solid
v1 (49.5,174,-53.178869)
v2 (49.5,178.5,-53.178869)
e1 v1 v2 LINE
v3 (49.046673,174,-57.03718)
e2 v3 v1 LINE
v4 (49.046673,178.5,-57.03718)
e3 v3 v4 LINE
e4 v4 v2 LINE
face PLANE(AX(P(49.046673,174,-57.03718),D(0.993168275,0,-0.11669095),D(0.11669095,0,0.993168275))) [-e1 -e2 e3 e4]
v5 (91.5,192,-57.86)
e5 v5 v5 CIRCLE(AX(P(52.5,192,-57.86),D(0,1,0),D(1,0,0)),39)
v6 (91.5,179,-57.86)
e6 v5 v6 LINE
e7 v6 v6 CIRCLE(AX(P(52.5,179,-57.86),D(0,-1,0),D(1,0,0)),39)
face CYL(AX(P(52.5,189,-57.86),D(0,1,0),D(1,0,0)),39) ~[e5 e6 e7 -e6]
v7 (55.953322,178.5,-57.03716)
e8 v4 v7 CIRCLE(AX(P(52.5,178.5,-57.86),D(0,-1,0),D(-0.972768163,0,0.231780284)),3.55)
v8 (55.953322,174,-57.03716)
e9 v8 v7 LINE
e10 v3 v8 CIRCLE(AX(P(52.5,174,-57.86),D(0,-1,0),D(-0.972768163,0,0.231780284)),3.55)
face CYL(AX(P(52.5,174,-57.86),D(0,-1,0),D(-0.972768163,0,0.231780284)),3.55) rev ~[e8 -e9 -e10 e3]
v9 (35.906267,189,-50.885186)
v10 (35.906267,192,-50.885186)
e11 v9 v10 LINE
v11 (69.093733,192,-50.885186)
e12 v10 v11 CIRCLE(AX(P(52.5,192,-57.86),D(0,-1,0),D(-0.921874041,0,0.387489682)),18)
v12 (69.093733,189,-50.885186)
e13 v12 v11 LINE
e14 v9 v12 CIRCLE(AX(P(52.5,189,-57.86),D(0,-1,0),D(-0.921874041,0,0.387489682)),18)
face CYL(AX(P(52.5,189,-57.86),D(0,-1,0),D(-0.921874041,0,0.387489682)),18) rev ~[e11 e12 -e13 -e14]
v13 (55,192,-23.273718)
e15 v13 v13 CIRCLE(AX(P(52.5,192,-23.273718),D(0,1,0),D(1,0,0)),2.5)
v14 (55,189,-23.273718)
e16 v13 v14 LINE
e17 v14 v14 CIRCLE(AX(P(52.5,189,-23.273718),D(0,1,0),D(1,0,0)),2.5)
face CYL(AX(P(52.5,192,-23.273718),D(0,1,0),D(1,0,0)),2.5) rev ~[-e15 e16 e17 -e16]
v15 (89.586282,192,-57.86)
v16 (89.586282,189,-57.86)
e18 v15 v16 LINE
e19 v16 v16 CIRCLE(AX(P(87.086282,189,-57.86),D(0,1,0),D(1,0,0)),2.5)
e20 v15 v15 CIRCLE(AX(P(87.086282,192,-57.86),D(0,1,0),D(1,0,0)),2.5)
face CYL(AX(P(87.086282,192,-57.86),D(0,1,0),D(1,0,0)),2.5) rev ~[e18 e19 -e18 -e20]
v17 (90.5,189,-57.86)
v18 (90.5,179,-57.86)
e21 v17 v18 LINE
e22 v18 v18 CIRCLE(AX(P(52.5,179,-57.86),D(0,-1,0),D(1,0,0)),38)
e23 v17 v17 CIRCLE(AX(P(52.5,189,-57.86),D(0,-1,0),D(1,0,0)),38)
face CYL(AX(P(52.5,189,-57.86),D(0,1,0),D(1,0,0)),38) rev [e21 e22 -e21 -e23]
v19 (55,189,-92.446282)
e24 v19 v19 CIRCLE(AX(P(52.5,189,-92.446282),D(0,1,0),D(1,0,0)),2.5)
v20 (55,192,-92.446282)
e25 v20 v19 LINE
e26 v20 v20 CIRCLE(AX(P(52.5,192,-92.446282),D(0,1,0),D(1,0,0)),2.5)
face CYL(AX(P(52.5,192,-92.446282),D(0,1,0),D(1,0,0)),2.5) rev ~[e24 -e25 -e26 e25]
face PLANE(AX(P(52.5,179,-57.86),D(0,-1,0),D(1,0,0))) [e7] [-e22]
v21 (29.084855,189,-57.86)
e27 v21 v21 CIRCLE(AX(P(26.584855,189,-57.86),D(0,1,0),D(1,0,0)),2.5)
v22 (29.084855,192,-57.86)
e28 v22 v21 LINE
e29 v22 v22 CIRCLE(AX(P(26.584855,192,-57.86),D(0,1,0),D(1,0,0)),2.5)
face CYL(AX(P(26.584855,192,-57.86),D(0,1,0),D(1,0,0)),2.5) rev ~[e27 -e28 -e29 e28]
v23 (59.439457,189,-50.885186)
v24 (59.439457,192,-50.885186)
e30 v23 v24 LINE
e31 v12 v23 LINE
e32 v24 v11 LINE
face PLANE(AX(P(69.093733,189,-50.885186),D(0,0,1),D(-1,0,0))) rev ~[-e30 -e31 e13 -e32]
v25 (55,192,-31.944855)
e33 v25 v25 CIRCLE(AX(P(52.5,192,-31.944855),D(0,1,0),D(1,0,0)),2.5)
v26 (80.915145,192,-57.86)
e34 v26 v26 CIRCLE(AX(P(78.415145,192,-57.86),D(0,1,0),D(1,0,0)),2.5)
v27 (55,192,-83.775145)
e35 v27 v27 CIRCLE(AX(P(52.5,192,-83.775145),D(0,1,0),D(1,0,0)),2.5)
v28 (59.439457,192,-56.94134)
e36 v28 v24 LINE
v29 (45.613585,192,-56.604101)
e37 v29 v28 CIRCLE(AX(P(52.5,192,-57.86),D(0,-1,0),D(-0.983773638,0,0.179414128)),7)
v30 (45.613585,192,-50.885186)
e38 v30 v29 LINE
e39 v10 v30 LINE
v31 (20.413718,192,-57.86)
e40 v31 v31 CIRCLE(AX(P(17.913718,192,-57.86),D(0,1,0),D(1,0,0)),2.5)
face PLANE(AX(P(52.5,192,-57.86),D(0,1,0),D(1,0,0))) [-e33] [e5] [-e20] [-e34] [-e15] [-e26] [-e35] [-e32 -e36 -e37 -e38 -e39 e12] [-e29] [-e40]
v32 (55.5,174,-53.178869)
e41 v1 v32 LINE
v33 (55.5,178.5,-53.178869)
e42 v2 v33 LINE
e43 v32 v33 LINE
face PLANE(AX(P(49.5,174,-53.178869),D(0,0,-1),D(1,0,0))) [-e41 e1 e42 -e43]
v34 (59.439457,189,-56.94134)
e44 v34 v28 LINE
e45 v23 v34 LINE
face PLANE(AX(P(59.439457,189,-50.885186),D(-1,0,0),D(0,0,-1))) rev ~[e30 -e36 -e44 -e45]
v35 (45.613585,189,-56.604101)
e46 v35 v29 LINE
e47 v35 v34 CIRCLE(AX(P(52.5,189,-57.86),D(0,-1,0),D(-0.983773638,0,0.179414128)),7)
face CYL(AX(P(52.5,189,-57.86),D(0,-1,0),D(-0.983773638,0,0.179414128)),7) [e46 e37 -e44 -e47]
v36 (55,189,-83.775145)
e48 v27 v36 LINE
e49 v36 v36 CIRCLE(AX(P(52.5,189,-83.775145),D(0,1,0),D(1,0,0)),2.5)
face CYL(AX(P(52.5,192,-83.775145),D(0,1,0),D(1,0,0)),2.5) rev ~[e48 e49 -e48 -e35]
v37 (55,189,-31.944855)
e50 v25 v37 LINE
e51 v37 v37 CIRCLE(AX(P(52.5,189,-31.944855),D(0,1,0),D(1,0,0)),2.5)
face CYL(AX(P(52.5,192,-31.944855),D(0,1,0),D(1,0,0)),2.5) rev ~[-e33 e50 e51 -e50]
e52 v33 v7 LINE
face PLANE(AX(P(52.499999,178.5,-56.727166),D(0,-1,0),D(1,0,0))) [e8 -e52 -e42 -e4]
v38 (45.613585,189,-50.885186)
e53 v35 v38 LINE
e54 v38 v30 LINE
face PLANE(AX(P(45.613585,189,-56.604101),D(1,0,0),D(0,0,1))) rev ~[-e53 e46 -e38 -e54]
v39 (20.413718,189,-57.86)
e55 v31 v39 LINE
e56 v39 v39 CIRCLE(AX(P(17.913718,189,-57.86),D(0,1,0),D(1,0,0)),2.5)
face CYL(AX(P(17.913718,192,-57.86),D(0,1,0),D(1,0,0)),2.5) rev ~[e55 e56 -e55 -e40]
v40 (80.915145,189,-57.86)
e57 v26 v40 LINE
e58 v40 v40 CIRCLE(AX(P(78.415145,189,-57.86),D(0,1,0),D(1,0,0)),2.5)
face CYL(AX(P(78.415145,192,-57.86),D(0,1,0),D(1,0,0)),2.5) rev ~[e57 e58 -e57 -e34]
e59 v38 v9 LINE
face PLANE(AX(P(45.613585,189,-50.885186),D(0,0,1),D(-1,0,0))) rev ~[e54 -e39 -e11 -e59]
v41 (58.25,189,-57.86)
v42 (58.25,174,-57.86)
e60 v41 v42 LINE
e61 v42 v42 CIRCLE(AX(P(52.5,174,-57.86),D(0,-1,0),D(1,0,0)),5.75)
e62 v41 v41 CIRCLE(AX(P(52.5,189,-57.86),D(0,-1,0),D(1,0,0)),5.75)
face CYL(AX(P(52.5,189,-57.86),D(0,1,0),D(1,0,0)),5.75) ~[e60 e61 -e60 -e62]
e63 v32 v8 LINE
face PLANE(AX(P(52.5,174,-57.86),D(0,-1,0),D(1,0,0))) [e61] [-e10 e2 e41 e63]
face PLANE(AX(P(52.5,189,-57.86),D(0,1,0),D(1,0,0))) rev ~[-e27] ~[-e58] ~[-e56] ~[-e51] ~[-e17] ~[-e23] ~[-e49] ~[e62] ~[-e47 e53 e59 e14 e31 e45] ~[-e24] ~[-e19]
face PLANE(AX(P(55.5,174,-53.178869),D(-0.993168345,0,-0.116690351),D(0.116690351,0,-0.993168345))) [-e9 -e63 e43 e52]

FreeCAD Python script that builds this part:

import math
import FreeCAD as App
import Part
import Sketcher
Q = App.Units.Quantity

doc = App.newDocument("Part")
params = doc.addObject("Spreadsheet::Sheet", "Params")
for row, (alias, value) in enumerate([
    ("sketch1_diameter", "11.5 mm"),
    ("pad1_length", "15 mm"),
    ("sketch2_diameter", "78 mm"),
    ("pad2_length", "3 mm"),
    ("sketch3_diameter", "78 mm"),
    ("sketch3_diameter2", "76 mm"),
    ("pad3_length", "10 mm"),
    ("sketch4_radius", "18 mm"),
    ("sketch4_radius2", "7 mm"),
    ("pocket1_length", "5 mm"),
    ("sketch5_diameter", "5 mm"),
    ("pocket2_length", "5 mm"),
    ("sketch6_width", "6 mm"),
    ("sketch6_radius", "3.55 mm"),
    ("pocket3_length", "4.5 mm"),
], start=1):
    params.set(f"A{row}", alias)
    params.set(f"B{row}", "=" + value)
    params.setAlias(f"B{row}", alias)

body = doc.addObject("PartDesign::Body", "Body")

# Sketch on XZ plane
sketch1 = doc.addObject("Sketcher::SketchObject", "Sketch")
body.addObject(sketch1)
sketch1.AttachmentSupport = (doc.XZ_Plane, [""])
sketch1.MapMode = "FlatFace"
sketch1.addGeometry(Part.Circle(App.Vector(52.5, -57.86, 0), App.Vector(0, 0, 1), 5.75), False)
sketch1.addConstraint([
    Sketcher.Constraint("Diameter", 0, Q("11.5 mm")),
    Sketcher.Constraint("DistanceX", -1, 1, 0, 3, Q("52.5 mm")),
    Sketcher.Constraint("DistanceY", 0, 3, -1, 1, Q("57.86 mm")),
])
sketch1.setExpression("Constraints[0]", "Params.sketch1_diameter")
pad1 = doc.addObject("PartDesign::Pad", "Pad")
body.addObject(pad1)
pad1.Profile = sketch1
pad1.setExpression("Length", "Params.pad1_length")

# Sketch on XZ plane
sketch2 = doc.addObject("Sketcher::SketchObject", "Sketch001")
body.addObject(sketch2)
sketch2.AttachmentSupport = (doc.XZ_Plane, [""])
sketch2.MapMode = "FlatFace"
sketch2.addGeometry(Part.Circle(App.Vector(52.5, -57.86, 0), App.Vector(0, 0, 1), 39), False)
sketch2.addConstraint([
    Sketcher.Constraint("Diameter", 0, Q("78 mm")),
    Sketcher.Constraint("DistanceX", -1, 1, 0, 3, Q("52.5 mm")),
    Sketcher.Constraint("DistanceY", 0, 3, -1, 1, Q("57.86 mm")),
])
sketch2.setExpression("Constraints[0]", "Params.sketch2_diameter")
pad2 = doc.addObject("PartDesign::Pad", "Pad001")
body.addObject(pad2)
pad2.Profile = sketch2
pad2.setExpression("Length", "Params.pad2_length")
pad2.Reversed = True

# Sketch on XZ plane
sketch3 = doc.addObject("Sketcher::SketchObject", "Sketch002")
body.addObject(sketch3)
sketch3.AttachmentSupport = (doc.XZ_Plane, [""])
sketch3.MapMode = "FlatFace"
sketch3.addGeometry([
    Part.Circle(App.Vector(52.5, -57.86, 0), App.Vector(0, 0, 1), 39),
    Part.Circle(App.Vector(52.5, -57.86, 0), App.Vector(0, 0, 1), 38),
], False)
sketch3.addConstraint([
    Sketcher.Constraint("Coincident", 1, 3, 0, 3),
    Sketcher.Constraint("Diameter", 0, Q("78 mm")),
    Sketcher.Constraint("Diameter", 1, Q("76 mm")),
    Sketcher.Constraint("DistanceX", -1, 1, 0, 3, Q("52.5 mm")),
    Sketcher.Constraint("DistanceY", 0, 3, -1, 1, Q("57.86 mm")),
])
sketch3.setExpression("Constraints[1]", "Params.sketch3_diameter")
sketch3.setExpression("Constraints[2]", "Params.sketch3_diameter2")
pad3 = doc.addObject("PartDesign::Pad", "Pad002")
body.addObject(pad3)
pad3.Profile = sketch3
pad3.setExpression("Length", "Params.pad3_length")

# Sketch on XZ plane
sketch4 = doc.addObject("Sketcher::SketchObject", "Sketch003")
body.addObject(sketch4)
sketch4.AttachmentSupport = (doc.XZ_Plane, [""])
sketch4.MapMode = "FlatFace"
sketch4.addGeometry([
    Part.ArcOfCircle(Part.Circle(App.Vector(52.5, -57.86, 0), App.Vector(0, 0, 1), 18), math.radians(157.20161), math.radians(382.79839)),  # 0
    Part.LineSegment(App.Vector(69.093733, -50.885186, 0), App.Vector(59.439457, -50.885186, 0)),  # 1
    Part.LineSegment(App.Vector(59.439457, -50.885186, 0), App.Vector(59.439457, -56.94134, 0)),  # 2
    Part.ArcOfCircle(Part.Circle(App.Vector(52.5, -57.86, 0), App.Vector(0, 0, 1), 7), math.radians(169.664364), math.radians(367.541089)),  # 3
    Part.LineSegment(App.Vector(45.613585, -56.604101, 0), App.Vector(45.613585, -50.885186, 0)),  # 4
    Part.LineSegment(App.Vector(45.613585, -50.885186, 0), App.Vector(35.906267, -50.885186, 0)),  # 5
], False)
sketch4.addConstraint([
    Sketcher.Constraint("Coincident", 0, 2, 1, 1),
    Sketcher.Constraint("Coincident", 1, 2, 2, 1),
    Sketcher.Constraint("Coincident", 2, 2, 3, 2),
    Sketcher.Constraint("Coincident", 3, 1, 4, 1),
    Sketcher.Constraint("Coincident", 4, 2, 5, 1),
    Sketcher.Constraint("Coincident", 5, 2, 0, 1),
    Sketcher.Constraint("Horizontal", 1),
    Sketcher.Constraint("Vertical", 2),
    Sketcher.Constraint("Vertical", 4),
    Sketcher.Constraint("Horizontal", 5),
    Sketcher.Constraint("Coincident", 3, 3, 0, 3),
    Sketcher.Constraint("Horizontal", 1, 2, 4, 2),
    Sketcher.Constraint("Radius", 0, Q("18 mm")),
    Sketcher.Constraint("Radius", 3, Q("7 mm")),
    Sketcher.Constraint("DistanceX", -1, 1, 0, 3, Q("52.5 mm")),
    Sketcher.Constraint("DistanceY", 0, 3, -1, 1, Q("57.86 mm")),
    Sketcher.Constraint("DistanceY", 3, 1, -1, 1, Q("56.604101 mm")),
    Sketcher.Constraint("DistanceX", 1, 2, 1, 1, Q("9.654276 mm")),
    Sketcher.Constraint("DistanceX", 5, 2, 5, 1, Q("9.707317 mm")),
])
sketch4.setExpression("Constraints[12]", "Params.sketch4_radius")
sketch4.setExpression("Constraints[13]", "Params.sketch4_radius2")
pocket1 = doc.addObject("PartDesign::Pocket", "Pocket")
body.addObject(pocket1)
pocket1.Profile = sketch4
pocket1.setExpression("Length", "Params.pocket1_length")

# Sketch on XZ plane
sketch5 = doc.addObject("Sketcher::SketchObject", "Sketch004")
body.addObject(sketch5)
sketch5.AttachmentSupport = (doc.XZ_Plane, [""])
sketch5.MapMode = "FlatFace"
sketch5.AttachmentOffset = App.Placement(App.Vector(0, 0, -3), App.Rotation())
sketch5.addGeometry([
    Part.Circle(App.Vector(17.913718, -57.86, 0), App.Vector(0, 0, 1), 2.5),  # 0
    Part.Circle(App.Vector(26.584855, -57.86, 0), App.Vector(0, 0, 1), 2.5),  # 1
    Part.Circle(App.Vector(52.5, -92.446282, 0), App.Vector(0, 0, 1), 2.5),  # 2
    Part.Circle(App.Vector(52.5, -83.775145, 0), App.Vector(0, 0, 1), 2.5),  # 3
    Part.Circle(App.Vector(78.415145, -57.86, 0), App.Vector(0, 0, 1), 2.5),  # 4
    Part.Circle(App.Vector(87.086282, -57.86, 0), App.Vector(0, 0, 1), 2.5),  # 5
    Part.Circle(App.Vector(52.5, -31.944855, 0), App.Vector(0, 0, 1), 2.5),  # 6
    Part.Circle(App.Vector(52.5, -23.273718, 0), App.Vector(0, 0, 1), 2.5),  # 7
], False)
sketch5.addConstraint([
    Sketcher.Constraint("Equal", 0, 1),
    Sketcher.Constraint("Equal", 1, 2),
    Sketcher.Constraint("Equal", 2, 3),
    Sketcher.Constraint("Equal", 3, 4),
    Sketcher.Constraint("Equal", 4, 5),
    Sketcher.Constraint("Equal", 5, 6),
    Sketcher.Constraint("Equal", 6, 7),
    Sketcher.Constraint("Horizontal", 0, 3, 1, 3),
    Sketcher.Constraint("Horizontal", 1, 3, 4, 3),
    Sketcher.Constraint("Horizontal", 4, 3, 5, 3),
    Sketcher.Constraint("Vertical", 2, 3, 3, 3),
    Sketcher.Constraint("Vertical", 3, 3, 6, 3),
    Sketcher.Constraint("Vertical", 6, 3, 7, 3),
    Sketcher.Constraint("Diameter", 0, Q("5 mm")),
    Sketcher.Constraint("DistanceX", -1, 1, 2, 3, Q("52.5 mm")),
    Sketcher.Constraint("DistanceY", 0, 3, -1, 1, Q("57.86 mm")),
    Sketcher.Constraint("DistanceX", 1, 3, 4, 3, Q("51.83029 mm")),
    Sketcher.Constraint("DistanceY", 3, 3, 6, 3, Q("51.83029 mm")),
    Sketcher.Constraint("DistanceX", -1, 1, 0, 3, Q("17.913718 mm")),
    Sketcher.Constraint("DistanceX", -1, 1, 1, 3, Q("26.584855 mm")),
    Sketcher.Constraint("DistanceY", 2, 3, -1, 1, Q("92.446282 mm")),
    Sketcher.Constraint("DistanceY", 3, 3, -1, 1, Q("83.775145 mm")),
    Sketcher.Constraint("DistanceX", -1, 1, 5, 3, Q("87.086282 mm")),
    Sketcher.Constraint("DistanceY", 7, 3, -1, 1, Q("23.273718 mm")),
])
sketch5.setExpression("Constraints[13]", "Params.sketch5_diameter")
pocket2 = doc.addObject("PartDesign::Pocket", "Pocket001")
body.addObject(pocket2)
pocket2.Profile = sketch5
pocket2.setExpression("Length", "Params.pocket2_length")
pocket2.Reversed = True

# Sketch on XZ plane
sketch6 = doc.addObject("Sketcher::SketchObject", "Sketch005")
body.addObject(sketch6)
sketch6.AttachmentSupport = (doc.XZ_Plane, [""])
sketch6.MapMode = "FlatFace"
sketch6.AttachmentOffset = App.Placement(App.Vector(0, 0, 15), App.Rotation())
sketch6.addGeometry([
    Part.ArcOfCircle(Part.Circle(App.Vector(52.5, -57.86, 0), App.Vector(0, 0, 1), 3.55), math.radians(166.598093), math.radians(373.402231)),
    Part.LineSegment(App.Vector(55.953322, -57.03716, 0), App.Vector(55.5, -53.178869, 0)),
    Part.LineSegment(App.Vector(55.5, -53.178869, 0), App.Vector(49.5, -53.178869, 0)),
    Part.LineSegment(App.Vector(49.5, -53.178869, 0), App.Vector(49.046673, -57.03718, 0)),
], False)
sketch6.addConstraint([
    Sketcher.Constraint("Coincident", 0, 2, 1, 1),
    Sketcher.Constraint("Coincident", 1, 2, 2, 1),
    Sketcher.Constraint("Coincident", 2, 2, 3, 1),
    Sketcher.Constraint("Coincident", 3, 2, 0, 1),
    Sketcher.Constraint("Horizontal", 2),
    Sketcher.Constraint("DistanceX", 2, 2, 2, 1, Q("6 mm")),
    Sketcher.Constraint("Radius", 0, Q("3.55 mm")),
    Sketcher.Constraint("DistanceX", 0, 3, 1, 2, Q("3 mm")),
    Sketcher.Constraint("DistanceX", -1, 1, 0, 3, Q("52.5 mm")),
    Sketcher.Constraint("DistanceY", 0, 3, -1, 1, Q("57.86 mm")),
    Sketcher.Constraint("Distance", 1, Q("3.884831 mm")),
    Sketcher.Constraint("Distance", 3, Q("3.884851 mm")),
    Sketcher.Constraint("DistanceY", 0, 2, -1, 1, Q("57.03716 mm")),
])
sketch6.setExpression("Constraints[5]", "Params.sketch6_width")
sketch6.setExpression("Constraints[6]", "Params.sketch6_radius")
pocket3 = doc.addObject("PartDesign::Pocket", "Pocket002")
body.addObject(pocket3)
pocket3.Profile = sketch6
pocket3.setExpression("Length", "Params.pocket3_length")
body2 = doc.addObject("PartDesign::Body", "Body001")
doc.recompute()

body.Placement = App.Placement(App.Vector(0, 189, 0), App.Rotation(App.Vector(0, 0, 1), 0))
boolean = doc.addObject("PartDesign::Boolean", "Boolean")
body2.addObject(boolean)
boolean.Type = "Fuse"
boolean.addObjects([body])

doc.recompute()
